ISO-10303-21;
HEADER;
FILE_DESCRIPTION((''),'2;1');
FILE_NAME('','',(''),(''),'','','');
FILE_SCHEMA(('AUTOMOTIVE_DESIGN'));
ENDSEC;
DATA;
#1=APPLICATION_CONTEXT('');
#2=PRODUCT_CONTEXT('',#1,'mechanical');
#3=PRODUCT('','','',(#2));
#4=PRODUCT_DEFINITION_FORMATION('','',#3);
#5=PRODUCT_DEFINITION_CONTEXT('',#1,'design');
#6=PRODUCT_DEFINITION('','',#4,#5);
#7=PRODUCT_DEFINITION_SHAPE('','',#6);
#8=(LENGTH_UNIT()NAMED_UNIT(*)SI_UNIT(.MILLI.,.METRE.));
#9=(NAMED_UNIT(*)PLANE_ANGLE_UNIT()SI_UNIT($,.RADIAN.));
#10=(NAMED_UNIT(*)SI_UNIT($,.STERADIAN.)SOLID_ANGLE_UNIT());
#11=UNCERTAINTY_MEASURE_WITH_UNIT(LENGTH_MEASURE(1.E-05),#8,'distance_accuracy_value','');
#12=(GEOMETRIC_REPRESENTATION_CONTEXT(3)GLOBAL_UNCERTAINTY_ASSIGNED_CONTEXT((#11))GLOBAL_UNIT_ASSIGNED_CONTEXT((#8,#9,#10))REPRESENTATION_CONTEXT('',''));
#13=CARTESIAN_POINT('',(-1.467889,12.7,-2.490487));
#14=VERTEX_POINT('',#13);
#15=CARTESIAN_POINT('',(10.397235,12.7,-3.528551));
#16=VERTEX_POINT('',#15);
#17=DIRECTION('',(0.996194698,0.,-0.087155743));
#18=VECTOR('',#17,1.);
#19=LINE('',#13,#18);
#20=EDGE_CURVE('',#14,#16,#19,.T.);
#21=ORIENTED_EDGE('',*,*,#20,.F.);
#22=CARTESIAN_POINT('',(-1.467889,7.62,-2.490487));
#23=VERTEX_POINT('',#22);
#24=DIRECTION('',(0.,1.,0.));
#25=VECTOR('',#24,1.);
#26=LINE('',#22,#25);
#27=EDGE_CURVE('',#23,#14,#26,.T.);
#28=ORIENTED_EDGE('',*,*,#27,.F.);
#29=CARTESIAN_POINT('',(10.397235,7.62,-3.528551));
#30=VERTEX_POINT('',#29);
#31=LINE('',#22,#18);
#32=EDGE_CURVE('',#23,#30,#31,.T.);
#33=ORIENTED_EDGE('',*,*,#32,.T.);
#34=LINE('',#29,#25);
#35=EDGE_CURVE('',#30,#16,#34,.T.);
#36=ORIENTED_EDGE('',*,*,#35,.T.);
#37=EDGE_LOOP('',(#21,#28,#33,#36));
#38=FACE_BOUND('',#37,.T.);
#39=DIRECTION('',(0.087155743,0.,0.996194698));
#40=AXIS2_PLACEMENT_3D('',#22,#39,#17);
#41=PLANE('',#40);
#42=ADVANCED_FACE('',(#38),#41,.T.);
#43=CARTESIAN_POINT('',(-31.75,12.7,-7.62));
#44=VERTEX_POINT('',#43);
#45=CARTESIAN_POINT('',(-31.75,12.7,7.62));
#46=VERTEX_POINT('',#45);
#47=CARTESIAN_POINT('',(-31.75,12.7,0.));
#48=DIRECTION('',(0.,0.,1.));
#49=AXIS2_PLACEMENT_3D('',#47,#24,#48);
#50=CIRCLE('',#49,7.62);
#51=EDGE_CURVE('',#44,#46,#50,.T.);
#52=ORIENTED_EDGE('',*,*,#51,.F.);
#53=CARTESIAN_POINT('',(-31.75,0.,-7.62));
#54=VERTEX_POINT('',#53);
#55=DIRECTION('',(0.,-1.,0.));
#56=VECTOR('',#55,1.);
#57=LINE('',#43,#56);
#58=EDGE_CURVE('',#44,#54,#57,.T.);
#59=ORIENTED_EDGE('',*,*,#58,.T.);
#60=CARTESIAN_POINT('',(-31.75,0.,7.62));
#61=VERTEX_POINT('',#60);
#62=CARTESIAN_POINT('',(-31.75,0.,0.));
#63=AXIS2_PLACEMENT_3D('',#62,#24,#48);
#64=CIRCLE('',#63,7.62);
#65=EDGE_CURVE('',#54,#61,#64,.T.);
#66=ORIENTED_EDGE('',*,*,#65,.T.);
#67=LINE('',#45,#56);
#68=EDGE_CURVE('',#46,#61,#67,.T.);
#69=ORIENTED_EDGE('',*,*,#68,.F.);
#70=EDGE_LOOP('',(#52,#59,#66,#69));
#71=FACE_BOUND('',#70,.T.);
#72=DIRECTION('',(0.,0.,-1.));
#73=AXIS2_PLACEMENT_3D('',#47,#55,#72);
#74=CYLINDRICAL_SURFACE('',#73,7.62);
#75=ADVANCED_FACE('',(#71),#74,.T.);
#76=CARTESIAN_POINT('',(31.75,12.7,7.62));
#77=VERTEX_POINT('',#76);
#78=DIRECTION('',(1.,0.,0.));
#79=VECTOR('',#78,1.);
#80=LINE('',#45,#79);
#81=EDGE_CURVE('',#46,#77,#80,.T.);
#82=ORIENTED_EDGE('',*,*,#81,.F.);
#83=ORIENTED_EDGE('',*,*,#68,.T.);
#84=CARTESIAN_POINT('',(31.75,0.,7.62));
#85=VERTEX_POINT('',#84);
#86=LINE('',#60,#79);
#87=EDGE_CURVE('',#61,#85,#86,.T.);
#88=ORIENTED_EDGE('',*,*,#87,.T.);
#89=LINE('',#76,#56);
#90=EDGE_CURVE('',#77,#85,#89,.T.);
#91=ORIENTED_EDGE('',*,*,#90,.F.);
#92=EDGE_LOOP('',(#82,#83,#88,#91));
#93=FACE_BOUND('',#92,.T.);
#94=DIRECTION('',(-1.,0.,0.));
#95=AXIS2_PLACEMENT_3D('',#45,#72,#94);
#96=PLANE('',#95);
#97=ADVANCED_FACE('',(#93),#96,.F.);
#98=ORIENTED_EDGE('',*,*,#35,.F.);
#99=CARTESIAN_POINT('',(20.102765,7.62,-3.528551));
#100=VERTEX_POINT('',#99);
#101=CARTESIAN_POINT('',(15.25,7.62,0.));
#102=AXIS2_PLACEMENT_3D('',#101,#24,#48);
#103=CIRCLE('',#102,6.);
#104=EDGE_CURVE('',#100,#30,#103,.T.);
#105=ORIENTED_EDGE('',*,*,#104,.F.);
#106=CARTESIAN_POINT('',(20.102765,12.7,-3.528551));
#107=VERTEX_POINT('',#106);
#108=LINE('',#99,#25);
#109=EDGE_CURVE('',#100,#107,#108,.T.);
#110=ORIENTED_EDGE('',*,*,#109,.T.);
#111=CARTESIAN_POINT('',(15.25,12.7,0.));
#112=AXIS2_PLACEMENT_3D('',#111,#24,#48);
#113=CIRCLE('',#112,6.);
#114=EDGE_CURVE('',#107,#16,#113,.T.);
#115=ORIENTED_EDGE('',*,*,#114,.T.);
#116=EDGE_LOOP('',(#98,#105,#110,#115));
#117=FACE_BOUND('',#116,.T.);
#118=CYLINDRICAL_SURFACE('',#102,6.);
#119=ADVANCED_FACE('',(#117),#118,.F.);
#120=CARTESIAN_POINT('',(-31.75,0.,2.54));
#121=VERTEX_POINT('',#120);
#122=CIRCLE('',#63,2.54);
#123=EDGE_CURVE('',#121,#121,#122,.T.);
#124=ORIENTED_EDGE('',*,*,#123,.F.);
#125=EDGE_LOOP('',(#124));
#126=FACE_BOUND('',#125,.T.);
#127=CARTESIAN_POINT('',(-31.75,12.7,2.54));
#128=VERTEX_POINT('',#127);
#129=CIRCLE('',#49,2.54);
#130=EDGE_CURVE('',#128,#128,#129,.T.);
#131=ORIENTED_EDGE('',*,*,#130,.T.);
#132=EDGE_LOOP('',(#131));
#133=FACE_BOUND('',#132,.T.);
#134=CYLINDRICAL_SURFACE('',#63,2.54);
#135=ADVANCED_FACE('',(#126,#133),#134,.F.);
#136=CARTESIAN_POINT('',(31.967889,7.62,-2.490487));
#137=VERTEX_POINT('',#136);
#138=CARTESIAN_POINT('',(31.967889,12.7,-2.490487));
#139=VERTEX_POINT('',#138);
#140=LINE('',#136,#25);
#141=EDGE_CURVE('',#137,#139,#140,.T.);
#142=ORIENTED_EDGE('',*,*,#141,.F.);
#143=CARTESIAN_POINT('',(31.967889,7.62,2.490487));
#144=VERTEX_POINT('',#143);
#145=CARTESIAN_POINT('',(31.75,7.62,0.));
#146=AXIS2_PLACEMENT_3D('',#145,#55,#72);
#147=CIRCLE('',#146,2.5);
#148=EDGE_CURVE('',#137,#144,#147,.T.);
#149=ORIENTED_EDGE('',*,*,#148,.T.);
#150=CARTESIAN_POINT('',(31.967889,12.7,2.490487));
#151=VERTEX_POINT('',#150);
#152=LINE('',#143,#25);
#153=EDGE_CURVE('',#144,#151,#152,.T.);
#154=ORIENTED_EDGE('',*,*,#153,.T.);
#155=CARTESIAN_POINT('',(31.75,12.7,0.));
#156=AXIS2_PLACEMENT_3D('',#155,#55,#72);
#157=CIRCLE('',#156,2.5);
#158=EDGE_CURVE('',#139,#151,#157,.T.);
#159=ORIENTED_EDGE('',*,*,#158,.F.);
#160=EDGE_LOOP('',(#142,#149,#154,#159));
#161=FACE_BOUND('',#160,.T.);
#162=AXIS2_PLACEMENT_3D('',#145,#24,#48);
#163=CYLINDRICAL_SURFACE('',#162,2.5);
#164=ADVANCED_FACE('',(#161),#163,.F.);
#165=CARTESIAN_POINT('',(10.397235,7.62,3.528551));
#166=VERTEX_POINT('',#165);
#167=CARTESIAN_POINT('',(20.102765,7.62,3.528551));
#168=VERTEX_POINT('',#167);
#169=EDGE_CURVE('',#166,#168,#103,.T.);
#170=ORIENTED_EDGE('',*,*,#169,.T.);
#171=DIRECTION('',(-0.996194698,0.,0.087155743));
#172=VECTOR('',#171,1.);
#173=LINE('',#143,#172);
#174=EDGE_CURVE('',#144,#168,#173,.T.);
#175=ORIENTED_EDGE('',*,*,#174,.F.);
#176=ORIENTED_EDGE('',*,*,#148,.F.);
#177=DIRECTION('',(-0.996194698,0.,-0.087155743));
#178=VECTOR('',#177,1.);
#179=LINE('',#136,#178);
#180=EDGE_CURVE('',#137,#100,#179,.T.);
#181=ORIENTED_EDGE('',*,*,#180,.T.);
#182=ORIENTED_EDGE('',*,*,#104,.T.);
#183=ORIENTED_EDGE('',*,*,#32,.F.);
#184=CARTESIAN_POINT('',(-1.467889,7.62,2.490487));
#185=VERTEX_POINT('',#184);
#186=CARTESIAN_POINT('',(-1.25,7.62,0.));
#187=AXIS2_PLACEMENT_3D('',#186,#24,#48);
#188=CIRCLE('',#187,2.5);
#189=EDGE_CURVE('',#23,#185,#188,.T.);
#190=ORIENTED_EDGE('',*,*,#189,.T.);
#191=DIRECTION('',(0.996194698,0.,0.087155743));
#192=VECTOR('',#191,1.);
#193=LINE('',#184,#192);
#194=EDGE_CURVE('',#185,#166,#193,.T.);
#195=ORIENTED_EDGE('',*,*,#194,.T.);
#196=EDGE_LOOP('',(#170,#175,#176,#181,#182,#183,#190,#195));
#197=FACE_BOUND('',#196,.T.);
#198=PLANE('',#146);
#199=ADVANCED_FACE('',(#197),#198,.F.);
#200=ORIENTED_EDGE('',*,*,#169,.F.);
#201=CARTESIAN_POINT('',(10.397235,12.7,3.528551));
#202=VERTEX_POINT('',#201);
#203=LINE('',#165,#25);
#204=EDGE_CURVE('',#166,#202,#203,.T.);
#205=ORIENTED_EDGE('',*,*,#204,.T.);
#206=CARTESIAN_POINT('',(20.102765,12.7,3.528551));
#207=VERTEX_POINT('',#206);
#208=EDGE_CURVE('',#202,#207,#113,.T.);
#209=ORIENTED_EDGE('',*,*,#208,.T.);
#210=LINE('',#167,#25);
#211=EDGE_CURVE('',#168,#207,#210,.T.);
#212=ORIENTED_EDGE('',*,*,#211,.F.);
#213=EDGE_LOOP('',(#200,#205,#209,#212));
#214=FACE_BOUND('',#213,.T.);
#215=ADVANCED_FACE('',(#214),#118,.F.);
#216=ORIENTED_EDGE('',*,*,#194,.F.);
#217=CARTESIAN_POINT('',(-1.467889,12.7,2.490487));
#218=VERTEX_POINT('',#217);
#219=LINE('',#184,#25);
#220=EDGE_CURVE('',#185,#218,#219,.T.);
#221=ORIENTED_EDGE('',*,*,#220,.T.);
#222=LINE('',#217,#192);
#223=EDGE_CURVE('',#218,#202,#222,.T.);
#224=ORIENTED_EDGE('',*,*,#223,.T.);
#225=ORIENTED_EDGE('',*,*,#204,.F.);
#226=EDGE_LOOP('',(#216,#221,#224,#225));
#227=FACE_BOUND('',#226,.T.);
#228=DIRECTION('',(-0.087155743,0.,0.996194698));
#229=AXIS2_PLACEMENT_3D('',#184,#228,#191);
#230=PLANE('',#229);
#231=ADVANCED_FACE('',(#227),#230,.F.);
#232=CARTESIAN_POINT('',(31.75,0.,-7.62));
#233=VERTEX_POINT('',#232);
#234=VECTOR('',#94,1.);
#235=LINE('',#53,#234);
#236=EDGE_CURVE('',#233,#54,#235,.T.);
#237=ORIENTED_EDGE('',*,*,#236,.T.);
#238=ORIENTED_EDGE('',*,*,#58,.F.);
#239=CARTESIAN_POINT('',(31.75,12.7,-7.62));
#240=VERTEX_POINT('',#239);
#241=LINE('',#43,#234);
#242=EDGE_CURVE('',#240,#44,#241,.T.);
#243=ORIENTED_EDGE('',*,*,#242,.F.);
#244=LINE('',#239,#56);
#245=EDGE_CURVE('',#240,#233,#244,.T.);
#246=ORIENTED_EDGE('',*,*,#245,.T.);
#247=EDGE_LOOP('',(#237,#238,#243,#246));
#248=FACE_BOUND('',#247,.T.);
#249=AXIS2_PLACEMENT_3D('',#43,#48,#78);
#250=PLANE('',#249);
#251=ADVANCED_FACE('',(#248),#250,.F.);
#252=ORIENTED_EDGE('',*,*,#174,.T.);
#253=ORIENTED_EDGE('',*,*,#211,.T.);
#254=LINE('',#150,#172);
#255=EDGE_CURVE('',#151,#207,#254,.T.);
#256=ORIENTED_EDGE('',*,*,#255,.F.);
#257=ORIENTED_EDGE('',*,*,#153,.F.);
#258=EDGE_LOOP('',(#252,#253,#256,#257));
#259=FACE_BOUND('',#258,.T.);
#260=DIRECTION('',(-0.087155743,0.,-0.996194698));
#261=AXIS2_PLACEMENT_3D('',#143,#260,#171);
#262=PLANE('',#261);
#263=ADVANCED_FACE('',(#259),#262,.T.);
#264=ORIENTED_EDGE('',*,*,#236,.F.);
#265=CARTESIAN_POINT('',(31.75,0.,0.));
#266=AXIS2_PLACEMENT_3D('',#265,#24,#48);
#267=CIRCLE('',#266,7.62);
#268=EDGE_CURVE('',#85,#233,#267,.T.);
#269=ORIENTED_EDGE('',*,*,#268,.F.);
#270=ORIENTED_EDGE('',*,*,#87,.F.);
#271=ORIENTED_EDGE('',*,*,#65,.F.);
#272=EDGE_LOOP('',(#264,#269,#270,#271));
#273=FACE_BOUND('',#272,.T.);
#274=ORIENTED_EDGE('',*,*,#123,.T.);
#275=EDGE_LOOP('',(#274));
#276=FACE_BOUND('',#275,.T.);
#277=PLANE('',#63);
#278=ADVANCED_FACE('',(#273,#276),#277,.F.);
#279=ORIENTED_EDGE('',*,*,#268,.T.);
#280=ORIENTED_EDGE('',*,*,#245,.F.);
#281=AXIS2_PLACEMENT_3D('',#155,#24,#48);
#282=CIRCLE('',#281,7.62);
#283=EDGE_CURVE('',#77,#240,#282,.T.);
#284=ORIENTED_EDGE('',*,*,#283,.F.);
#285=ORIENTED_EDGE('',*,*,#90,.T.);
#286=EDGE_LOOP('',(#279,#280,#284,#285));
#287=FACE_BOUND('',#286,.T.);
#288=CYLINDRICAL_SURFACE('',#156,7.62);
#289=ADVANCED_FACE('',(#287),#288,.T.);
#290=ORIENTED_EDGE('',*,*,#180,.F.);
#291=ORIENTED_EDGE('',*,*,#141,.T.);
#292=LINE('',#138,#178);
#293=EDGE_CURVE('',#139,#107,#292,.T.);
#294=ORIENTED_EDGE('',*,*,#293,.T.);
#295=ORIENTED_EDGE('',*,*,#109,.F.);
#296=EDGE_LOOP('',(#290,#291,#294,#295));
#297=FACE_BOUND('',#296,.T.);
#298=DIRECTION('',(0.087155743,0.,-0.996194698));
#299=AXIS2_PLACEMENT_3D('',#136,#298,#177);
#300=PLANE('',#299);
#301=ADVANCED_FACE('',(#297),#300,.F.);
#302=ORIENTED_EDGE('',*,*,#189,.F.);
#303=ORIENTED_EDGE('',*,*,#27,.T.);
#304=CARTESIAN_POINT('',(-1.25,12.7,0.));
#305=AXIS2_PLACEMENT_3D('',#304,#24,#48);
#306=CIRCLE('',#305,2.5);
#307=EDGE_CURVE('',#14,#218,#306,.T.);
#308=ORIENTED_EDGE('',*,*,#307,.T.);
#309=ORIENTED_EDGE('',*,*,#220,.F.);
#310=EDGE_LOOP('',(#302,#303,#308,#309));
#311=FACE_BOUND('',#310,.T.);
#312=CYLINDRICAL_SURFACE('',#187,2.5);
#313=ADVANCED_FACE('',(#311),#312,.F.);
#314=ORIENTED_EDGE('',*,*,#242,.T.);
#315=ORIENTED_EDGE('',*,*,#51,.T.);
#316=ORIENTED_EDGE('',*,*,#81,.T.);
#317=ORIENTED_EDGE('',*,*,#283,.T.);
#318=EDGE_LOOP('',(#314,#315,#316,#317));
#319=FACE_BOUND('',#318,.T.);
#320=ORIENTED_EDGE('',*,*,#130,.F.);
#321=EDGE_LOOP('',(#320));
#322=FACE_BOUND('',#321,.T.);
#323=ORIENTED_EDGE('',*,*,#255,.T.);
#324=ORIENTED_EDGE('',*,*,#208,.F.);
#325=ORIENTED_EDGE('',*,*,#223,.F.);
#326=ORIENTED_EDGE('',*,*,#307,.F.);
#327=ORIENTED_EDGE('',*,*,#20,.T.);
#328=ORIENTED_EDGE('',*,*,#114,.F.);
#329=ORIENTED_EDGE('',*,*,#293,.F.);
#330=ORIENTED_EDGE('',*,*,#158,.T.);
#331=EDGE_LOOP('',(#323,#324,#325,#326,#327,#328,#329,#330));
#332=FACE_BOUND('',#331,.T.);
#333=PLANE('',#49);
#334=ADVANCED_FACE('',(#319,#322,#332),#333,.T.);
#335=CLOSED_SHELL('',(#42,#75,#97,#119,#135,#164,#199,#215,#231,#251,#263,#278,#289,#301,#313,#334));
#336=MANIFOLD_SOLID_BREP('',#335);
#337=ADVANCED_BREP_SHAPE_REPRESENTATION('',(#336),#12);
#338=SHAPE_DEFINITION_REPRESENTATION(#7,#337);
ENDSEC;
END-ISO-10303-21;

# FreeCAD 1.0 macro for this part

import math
import FreeCAD as App
import Part
import Sketcher
from FreeCAD import Vector
Q = App.Units.Quantity

doc = App.newDocument("Part")
params = doc.addObject("Spreadsheet::Sheet", "Params")
for row, (alias, value) in enumerate([
    ("sketch1_radius", "0.3 in"),
    ("sketch1_width", "2.5 in"),
    ("pad1_length", "0.5 in"),
    ("sketch2_diameter", "0.2 in"),
    ("pocket2_length", "0.2 in"),
], start=1):
    params.set(f"A{row}", alias)
    params.set(f"B{row}", "=" + value)
    params.setAlias(f"B{row}", alias)

body = doc.addObject("PartDesign::Body", "Body")

# Sketch on XZ plane
sketch1 = body.newObject("Sketcher::SketchObject", "Sketch")
sketch1.AttachmentSupport = (doc.getObject("XZ_Plane"), [""])
sketch1.MapMode = "FlatFace"
sketch1.addGeometry([
    Part.LineSegment(Vector(32, -8, 0), Vector(-32, -8, 0)),
    Part.ArcOfCircle(Part.Circle(Vector(-32, 0, 0), Vector(0, 0, 1), 8), math.radians(90), math.radians(270)),
    Part.LineSegment(Vector(-32, 8, 0), Vector(32, 8, 0)),
    Part.ArcOfCircle(Part.Circle(Vector(32, 0, 0), Vector(0, 0, 1), 8), math.radians(-90), math.radians(90)),
], False)
sketch1.addConstraint([
    Sketcher.Constraint("Tangent", 0, 2, 1, 2),
    Sketcher.Constraint("Tangent", 1, 1, 2, 1),
    Sketcher.Constraint("Tangent", 2, 2, 3, 2),
    Sketcher.Constraint("Tangent", 3, 1, 0, 1),
    Sketcher.Constraint("Horizontal", 0),
    Sketcher.Constraint("Horizontal", 2),
    Sketcher.Constraint("Symmetric", 1, 3, 3, 3, -1, 1),
    Sketcher.Constraint("Radius", 1, Q("0.3 in")),
    Sketcher.Constraint("DistanceX", 0, 2, 0, 1, Q("2.5 in")),
])
sketch1.setExpression("Constraints[7]", "Params.sketch1_radius")
sketch1.setExpression("Constraints[8]", "Params.sketch1_width")
pad1 = body.newObject("PartDesign::Pad", "Pad")
pad1.Profile = sketch1
pad1.setExpression("Length", "Params.pad1_length")
pad1.Reversed = True

# Sketch on XZ plane
sketch2 = body.newObject("Sketcher::SketchObject", "Sketch001")
sketch2.AttachmentSupport = (doc.getObject("XZ_Plane"), [""])
sketch2.MapMode = "FlatFace"
sketch2.AttachmentOffset = App.Placement(Vector(0, 0, -0.5 * 25.4), App.Rotation())
sketch2.addGeometry(Part.Circle(Vector(-31.8, 0, 0), Vector(0, 0, 1), 2.5), False)
sketch2.addConstraint([
    Sketcher.Constraint("PointOnObject", 0, 3, -1),
    Sketcher.Constraint("Diameter", 0, Q("0.2 in")),
    Sketcher.Constraint("DistanceX", 0, 3, -1, 1, Q("1.25 in")),
])
sketch2.setExpression("Constraints[1]", "Params.sketch2_diameter")
pocket1 = body.newObject("PartDesign::Pocket", "Pocket")
pocket1.Profile = sketch2
pocket1.Type = "ThroughAll"
pocket1.Reversed = True

# Sketch on XZ plane
sketch3 = body.newObject("Sketcher::SketchObject", "Sketch002")
sketch3.AttachmentSupport = (doc.getObject("XZ_Plane"), [""])
sketch3.MapMode = "FlatFace"
sketch3.AttachmentOffset = App.Placement(Vector(0, 0, -0.5 * 25.4), App.Rotation())
sketch3.addGeometry([
    Part.LineSegment(Vector(10.4, -3.5, 0), Vector(-1.5, -2.5, 0)),  # 0
    Part.ArcOfCircle(Part.Circle(Vector(-1.2, 0, 0), Vector(0, 0, 1), 2.5), math.radians(95), math.radians(265)),  # 1
    Part.LineSegment(Vector(-1.5, 2.5, 0), Vector(10.4, 3.5, 0)),  # 2
    Part.ArcOfCircle(Part.Circle(Vector(15.2, 0, 0), Vector(0, 0, 1), 6), math.radians(36), math.radians(144)),  # 3
    Part.LineSegment(Vector(20.1, 3.5, 0), Vector(32, 2.5, 0)),  # 4
    Part.ArcOfCircle(Part.Circle(Vector(31.8, 0, 0), Vector(0, 0, 1), 2.5), math.radians(-85), math.radians(85)),  # 5
    Part.LineSegment(Vector(32, -2.5, 0), Vector(20.1, -3.5, 0)),  # 6
    Part.ArcOfCircle(Part.Circle(Vector(15.2, 0, 0), Vector(0, 0, 1), 6), math.radians(-144), math.radians(-36)),  # 7
], False)
sketch3.addConstraint([
    Sketcher.Constraint("Tangent", 0, 2, 1, 2),
    Sketcher.Constraint("Tangent", 1, 1, 2, 1),
    Sketcher.Constraint("Coincident", 2, 2, 3, 2),
    Sketcher.Constraint("Coincident", 3, 1, 4, 1),
    Sketcher.Constraint("Tangent", 4, 2, 5, 2),
    Sketcher.Constraint("Tangent", 5, 1, 6, 1),
    Sketcher.Constraint("Coincident", 6, 2, 7, 2),
    Sketcher.Constraint("Coincident", 7, 1, 0, 1),
    Sketcher.Constraint("Coincident", 7, 3, 3, 3),
    Sketcher.Constraint("Equal", 1, 5),
    Sketcher.Constraint("Equal", 3, 7),
    Sketcher.Constraint("Symmetric", 0, 2, 1, 1, -1),
    Sketcher.Constraint("Symmetric", 4, 2, 5, 1, -1),
    Sketcher.Constraint("PointOnObject", 3, 3, -1),
    Sketcher.Constraint("Parallel", 0, 4),
    Sketcher.Constraint("Horizontal", 2, 2, 3, 1),
    Sketcher.Constraint("Angle", 0, Q("175 deg")),
    Sketcher.Constraint("DistanceX", -1, 1, 5, 3, Q("1.25 in")),
    Sketcher.Constraint("Radius", 1, Q("2.5 mm")),
    Sketcher.Constraint("Radius", 3, Q("6 mm")),
    Sketcher.Constraint("DistanceX", 1, 3, -1, 1, Q("1.25 mm")),
])
pocket2 = body.newObject("PartDesign::Pocket", "Pocket001")
pocket2.Profile = sketch3
pocket2.setExpression("Length", "Params.pocket2_length")
pocket2.Reversed = True

doc.recompute()
